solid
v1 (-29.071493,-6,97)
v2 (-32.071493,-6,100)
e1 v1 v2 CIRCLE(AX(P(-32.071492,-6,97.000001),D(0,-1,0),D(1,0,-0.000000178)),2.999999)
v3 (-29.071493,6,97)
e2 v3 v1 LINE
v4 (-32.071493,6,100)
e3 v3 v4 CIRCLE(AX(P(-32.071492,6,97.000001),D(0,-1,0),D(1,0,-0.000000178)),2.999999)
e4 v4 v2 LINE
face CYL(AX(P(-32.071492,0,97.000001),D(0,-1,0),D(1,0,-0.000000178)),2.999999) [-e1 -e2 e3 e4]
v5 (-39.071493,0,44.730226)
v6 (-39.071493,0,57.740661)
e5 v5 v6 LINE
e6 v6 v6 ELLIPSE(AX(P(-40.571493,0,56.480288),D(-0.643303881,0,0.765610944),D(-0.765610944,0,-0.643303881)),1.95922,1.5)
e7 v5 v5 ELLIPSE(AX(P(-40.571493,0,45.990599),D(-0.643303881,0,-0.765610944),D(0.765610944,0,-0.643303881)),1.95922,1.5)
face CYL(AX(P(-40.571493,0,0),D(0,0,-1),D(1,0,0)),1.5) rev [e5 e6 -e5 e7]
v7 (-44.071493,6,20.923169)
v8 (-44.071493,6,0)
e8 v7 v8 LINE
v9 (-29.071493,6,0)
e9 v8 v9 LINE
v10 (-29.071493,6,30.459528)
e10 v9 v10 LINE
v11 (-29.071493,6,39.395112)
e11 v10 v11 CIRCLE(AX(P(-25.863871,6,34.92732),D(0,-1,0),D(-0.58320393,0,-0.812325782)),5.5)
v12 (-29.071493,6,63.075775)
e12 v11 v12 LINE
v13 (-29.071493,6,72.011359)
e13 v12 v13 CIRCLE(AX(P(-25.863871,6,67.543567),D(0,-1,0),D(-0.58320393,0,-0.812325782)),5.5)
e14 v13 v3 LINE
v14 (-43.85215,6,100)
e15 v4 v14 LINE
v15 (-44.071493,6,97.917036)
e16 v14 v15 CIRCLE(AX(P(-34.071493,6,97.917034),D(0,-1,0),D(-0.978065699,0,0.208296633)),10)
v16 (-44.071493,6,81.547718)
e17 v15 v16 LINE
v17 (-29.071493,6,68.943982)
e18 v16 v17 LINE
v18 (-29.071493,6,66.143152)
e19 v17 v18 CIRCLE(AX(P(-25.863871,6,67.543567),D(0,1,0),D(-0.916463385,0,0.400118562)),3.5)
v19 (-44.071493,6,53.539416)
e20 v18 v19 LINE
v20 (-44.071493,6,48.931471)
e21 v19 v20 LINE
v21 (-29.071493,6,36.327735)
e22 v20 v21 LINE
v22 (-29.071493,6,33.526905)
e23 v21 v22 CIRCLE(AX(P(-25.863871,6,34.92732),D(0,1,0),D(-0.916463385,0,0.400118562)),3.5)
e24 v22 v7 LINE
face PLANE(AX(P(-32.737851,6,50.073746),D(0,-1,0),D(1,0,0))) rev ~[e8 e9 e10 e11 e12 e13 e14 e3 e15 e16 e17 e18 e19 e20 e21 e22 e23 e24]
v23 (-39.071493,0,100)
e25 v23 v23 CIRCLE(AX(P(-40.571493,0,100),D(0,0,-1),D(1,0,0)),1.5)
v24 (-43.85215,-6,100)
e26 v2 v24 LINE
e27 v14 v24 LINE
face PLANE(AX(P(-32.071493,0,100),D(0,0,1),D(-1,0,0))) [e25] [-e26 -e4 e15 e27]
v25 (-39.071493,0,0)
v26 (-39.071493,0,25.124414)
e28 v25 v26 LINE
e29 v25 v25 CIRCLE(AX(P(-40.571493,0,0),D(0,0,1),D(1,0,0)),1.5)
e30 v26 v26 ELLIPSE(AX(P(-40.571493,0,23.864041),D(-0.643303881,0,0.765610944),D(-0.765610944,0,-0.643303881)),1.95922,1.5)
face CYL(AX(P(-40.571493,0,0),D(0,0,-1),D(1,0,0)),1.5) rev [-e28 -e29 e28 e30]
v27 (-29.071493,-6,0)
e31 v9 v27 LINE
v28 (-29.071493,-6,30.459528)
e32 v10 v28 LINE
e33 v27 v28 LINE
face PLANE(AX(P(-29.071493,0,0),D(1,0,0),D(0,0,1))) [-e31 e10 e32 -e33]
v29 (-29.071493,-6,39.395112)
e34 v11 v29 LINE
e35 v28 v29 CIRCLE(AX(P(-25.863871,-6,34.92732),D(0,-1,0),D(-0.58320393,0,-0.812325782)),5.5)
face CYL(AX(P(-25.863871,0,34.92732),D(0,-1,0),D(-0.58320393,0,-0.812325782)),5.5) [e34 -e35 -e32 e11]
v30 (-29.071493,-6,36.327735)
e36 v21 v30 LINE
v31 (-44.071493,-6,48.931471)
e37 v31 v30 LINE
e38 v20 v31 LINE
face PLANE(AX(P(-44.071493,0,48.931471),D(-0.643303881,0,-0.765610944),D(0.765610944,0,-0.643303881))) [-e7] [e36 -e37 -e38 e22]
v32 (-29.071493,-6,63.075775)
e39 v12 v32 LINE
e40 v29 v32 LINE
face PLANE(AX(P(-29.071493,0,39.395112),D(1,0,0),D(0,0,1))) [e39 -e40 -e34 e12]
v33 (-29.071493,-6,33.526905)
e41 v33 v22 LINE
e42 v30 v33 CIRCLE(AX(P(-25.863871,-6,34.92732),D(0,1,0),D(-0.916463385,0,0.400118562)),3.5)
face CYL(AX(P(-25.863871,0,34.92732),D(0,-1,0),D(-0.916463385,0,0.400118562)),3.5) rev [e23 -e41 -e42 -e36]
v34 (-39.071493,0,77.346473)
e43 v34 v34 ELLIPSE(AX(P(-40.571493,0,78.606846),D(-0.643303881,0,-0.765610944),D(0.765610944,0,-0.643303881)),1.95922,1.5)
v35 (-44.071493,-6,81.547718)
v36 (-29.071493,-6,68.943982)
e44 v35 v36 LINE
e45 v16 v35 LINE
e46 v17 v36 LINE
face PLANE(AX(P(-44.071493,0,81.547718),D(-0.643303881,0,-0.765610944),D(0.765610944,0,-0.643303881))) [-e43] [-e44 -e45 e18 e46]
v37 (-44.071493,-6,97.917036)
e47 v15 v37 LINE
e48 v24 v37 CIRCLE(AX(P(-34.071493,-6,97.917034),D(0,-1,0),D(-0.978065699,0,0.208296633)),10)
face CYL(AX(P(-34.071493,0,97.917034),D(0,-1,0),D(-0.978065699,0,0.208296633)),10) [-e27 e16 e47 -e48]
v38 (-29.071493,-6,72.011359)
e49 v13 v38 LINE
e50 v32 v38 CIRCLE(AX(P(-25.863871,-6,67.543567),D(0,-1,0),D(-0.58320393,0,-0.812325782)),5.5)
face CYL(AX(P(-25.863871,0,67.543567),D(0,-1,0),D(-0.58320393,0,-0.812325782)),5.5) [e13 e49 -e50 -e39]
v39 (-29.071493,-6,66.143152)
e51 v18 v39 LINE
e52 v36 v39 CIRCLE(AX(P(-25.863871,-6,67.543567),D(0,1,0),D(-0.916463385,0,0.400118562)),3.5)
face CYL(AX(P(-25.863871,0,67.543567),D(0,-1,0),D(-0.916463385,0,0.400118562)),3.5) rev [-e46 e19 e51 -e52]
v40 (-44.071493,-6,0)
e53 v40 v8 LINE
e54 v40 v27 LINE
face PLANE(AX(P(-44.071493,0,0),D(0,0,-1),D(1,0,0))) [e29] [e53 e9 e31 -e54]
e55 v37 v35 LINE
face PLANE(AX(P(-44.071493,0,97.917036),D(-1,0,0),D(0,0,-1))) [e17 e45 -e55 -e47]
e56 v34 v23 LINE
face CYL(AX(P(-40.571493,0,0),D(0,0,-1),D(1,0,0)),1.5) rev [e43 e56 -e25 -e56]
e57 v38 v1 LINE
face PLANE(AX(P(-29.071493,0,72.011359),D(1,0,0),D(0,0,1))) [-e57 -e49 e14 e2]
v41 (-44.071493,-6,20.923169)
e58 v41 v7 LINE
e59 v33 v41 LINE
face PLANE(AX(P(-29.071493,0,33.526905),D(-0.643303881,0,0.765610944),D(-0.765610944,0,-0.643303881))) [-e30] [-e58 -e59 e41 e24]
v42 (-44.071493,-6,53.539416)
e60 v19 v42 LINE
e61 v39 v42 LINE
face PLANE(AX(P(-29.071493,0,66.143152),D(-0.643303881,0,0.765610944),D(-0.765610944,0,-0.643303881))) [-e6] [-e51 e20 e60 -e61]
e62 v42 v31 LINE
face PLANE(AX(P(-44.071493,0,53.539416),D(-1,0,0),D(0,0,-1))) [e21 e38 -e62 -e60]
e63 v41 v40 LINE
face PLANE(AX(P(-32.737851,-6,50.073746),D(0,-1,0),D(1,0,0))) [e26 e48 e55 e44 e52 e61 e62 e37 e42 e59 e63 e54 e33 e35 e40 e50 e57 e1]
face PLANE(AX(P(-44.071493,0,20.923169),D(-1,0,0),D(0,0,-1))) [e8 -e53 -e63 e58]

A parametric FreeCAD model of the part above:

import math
import FreeCAD as App
import Part
import Sketcher

doc = App.newDocument("Part")
body = doc.addObject("PartDesign::Body", "Body")

sketch1 = body.newObject("Sketcher::SketchObject", "Sketch")
sketch1.AttachmentSupport = (doc.getObject("XZ_Plane"), [""])
sketch1.MapMode = "FlatFace"
sketch1.addGeometry(Part.LineSegment(App.Vector(-44.1, 0, 0), App.Vector(-29.1, 0, 0)), False)
sketch1.addGeometry(Part.LineSegment(App.Vector(-29.1, 0, 0), App.Vector(-29.1, 30.5, 0)), False)
sketch1.addGeometry(Part.ArcOfCircle(Part.Circle(App.Vector(-25.9, 34.9, 0), App.Vector(0, 0, 1), 5.5), math.radians(-126), math.radians(126)), False)
sketch1.addGeometry(Part.LineSegment(App.Vector(-29.1, 39.4, 0), App.Vector(-29.1, 63.1, 0)), False)
sketch1.addGeometry(Part.ArcOfCircle(Part.Circle(App.Vector(-25.9, 67.5, 0), App.Vector(0, 0, 1), 5.5), math.radians(-126), math.radians(126)), False)
sketch1.addGeometry(Part.LineSegment(App.Vector(-29.1, 72, 0), App.Vector(-29.1, 97, 0)), False)
sketch1.addGeometry(Part.ArcOfCircle(Part.Circle(App.Vector(-32.1, 97, 0), App.Vector(0, 0, 1), 3), math.radians(0), math.radians(90)), False)
sketch1.addGeometry(Part.LineSegment(App.Vector(-32.1, 100, 0), App.Vector(-43.9, 100, 0)), False)
sketch1.addGeometry(Part.ArcOfCircle(Part.Circle(App.Vector(-34.1, 97.9, 0), App.Vector(0, 0, 1), 10), math.radians(167.98), math.radians(180)), False)
sketch1.addGeometry(Part.LineSegment(App.Vector(-44.1, 97.9, 0), App.Vector(-44.1, 81.5, 0)), False)
sketch1.addGeometry(Part.LineSegment(App.Vector(-44.1, 81.5, 0), App.Vector(-29.1, 68.9, 0)), False)
sketch1.addGeometry(Part.ArcOfCircle(Part.Circle(App.Vector(-25.9, 67.5, 0), App.Vector(0, 0, 1), 3.5), math.radians(-156), math.radians(156)), False)
sketch1.addGeometry(Part.LineSegment(App.Vector(-29.1, 66.1, 0), App.Vector(-44.1, 53.5, 0)), False)
sketch1.addGeometry(Part.LineSegment(App.Vector(-44.1, 53.5, 0), App.Vector(-44.1, 48.9, 0)), False)
sketch1.addGeometry(Part.LineSegment(App.Vector(-44.1, 48.9, 0), App.Vector(-29.1, 36.3, 0)), False)
sketch1.addGeometry(Part.ArcOfCircle(Part.Circle(App.Vector(-25.9, 34.9, 0), App.Vector(0, 0, 1), 3.5), math.radians(-156), math.radians(156)), False)
sketch1.addGeometry(Part.LineSegment(App.Vector(-29.1, 33.5, 0), App.Vector(-44.1, 20.9, 0)), False)
sketch1.addGeometry(Part.LineSegment(App.Vector(-44.1, 20.9, 0), App.Vector(-44.1, 0, 0)), False)
sketch1.addConstraint(Sketcher.Constraint("Coincident", 0, 2, 1, 1))
sketch1.addConstraint(Sketcher.Constraint("Coincident", 1, 2, 2, 1))
sketch1.addConstraint(Sketcher.Constraint("Coincident", 2, 2, 3, 1))
sketch1.addConstraint(Sketcher.Constraint("Coincident", 3, 2, 4, 1))
sketch1.addConstraint(Sketcher.Constraint("Coincident", 4, 2, 5, 1))
sketch1.addConstraint(Sketcher.Constraint("Tangent", 5, 2, 6, 1))
sketch1.addConstraint(Sketcher.Constraint("Tangent", 6, 2, 7, 1))
sketch1.addConstraint(Sketcher.Constraint("Coincident", 7, 2, 8, 1))
sketch1.addConstraint(Sketcher.Constraint("Tangent", 8, 2, 9, 1))
sketch1.addConstraint(Sketcher.Constraint("Coincident", 9, 2, 10, 1))
sketch1.addConstraint(Sketcher.Constraint("Coincident", 10, 2, 11, 2))
sketch1.addConstraint(Sketcher.Constraint("Coincident", 11, 1, 12, 1))
sketch1.addConstraint(Sketcher.Constraint("Coincident", 12, 2, 13, 1))
sketch1.addConstraint(Sketcher.Constraint("Coincident", 13, 2, 14, 1))
sketch1.addConstraint(Sketcher.Constraint("Coincident", 14, 2, 15, 2))
sketch1.addConstraint(Sketcher.Constraint("Coincident", 15, 1, 16, 1))
sketch1.addConstraint(Sketcher.Constraint("Coincident", 16, 2, 17, 1))
sketch1.addConstraint(Sketcher.Constraint("Coincident", 17, 2, 0, 1))
sketch1.addConstraint(Sketcher.Constraint("Horizontal", 0))
sketch1.addConstraint(Sketcher.Constraint("Vertical", 1))
sketch1.addConstraint(Sketcher.Constraint("Vertical", 3))
sketch1.addConstraint(Sketcher.Constraint("Vertical", 5))
sketch1.addConstraint(Sketcher.Constraint("Horizontal", 7))
sketch1.addConstraint(Sketcher.Constraint("Vertical", 9))
sketch1.addConstraint(Sketcher.Constraint("Vertical", 13))
sketch1.addConstraint(Sketcher.Constraint("Vertical", 17))
sketch1.addConstraint(Sketcher.Constraint("Coincident", 11, 3, 4, 3))
sketch1.addConstraint(Sketcher.Constraint("Coincident", 15, 3, 2, 3))
sketch1.addConstraint(Sketcher.Constraint("Equal", 2, 4))
sketch1.addConstraint(Sketcher.Constraint("Equal", 11, 15))
sketch1.addConstraint(Sketcher.Constraint("PointOnObject", 0, 2, -1))
sketch1.addConstraint(Sketcher.Constraint("Parallel", 10, 14))
sketch1.addConstraint(Sketcher.Constraint("Parallel", 12, 16))
sketch1.addConstraint(Sketcher.Constraint("Vertical", 2, 3, 4, 3))
sketch1.addConstraint(Sketcher.Constraint("Vertical", 1, 2, 2, 2))
sketch1.addConstraint(Sketcher.Constraint("Vertical", 3, 2, 4, 2))
sketch1.addConstraint(Sketcher.Constraint("Vertical", 5, 2, 10, 2))
sketch1.addConstraint(Sketcher.Constraint("Vertical", 10, 2, 11, 1))
sketch1.addConstraint(Sketcher.Constraint("Vertical", 9, 2, 12, 2))
sketch1.addConstraint(Sketcher.Constraint("Vertical", 11, 1, 14, 2))
sketch1.addConstraint(Sketcher.Constraint("Vertical", 14, 2, 15, 1))
sketch1.addConstraint(Sketcher.Constraint("Vertical", 13, 2, 16, 2))
sketch1.addConstraint(Sketcher.Constraint("Equal", 10, 12))
sketch1.addConstraint(Sketcher.Constraint("Radius", 6, 2.999999))
sketch1.addConstraint(Sketcher.Constraint("Radius", 8, 10.0))
sketch1.addConstraint(Sketcher.Constraint("Radius", 2, 5.5))
sketch1.addConstraint(Sketcher.Constraint("Radius", 11, 3.5))
sketch1.addConstraint(Sketcher.Constraint("DistanceX", 0, 1, 0, 2, 15.0))
sketch1.addConstraint(Sketcher.Constraint("DistanceY", -1, 1, 6, 3, 97.000001))
sketch1.addConstraint(Sketcher.Constraint("DistanceY", 5, 1, 5, 2, 24.988641))
sketch1.addConstraint(Sketcher.Constraint("DistanceY", 17, 2, 17, 1, 20.923169))
sketch1.addConstraint(Sketcher.Constraint("DistanceX", 7, 2, 7, 1, 11.780657))
sketch1.addConstraint(Sketcher.Constraint("DistanceY", 1, 1, 1, 2, 30.459528))
sketch1.addConstraint(Sketcher.Constraint("DistanceY", 3, 1, 3, 2, 23.680663))
sketch1.addConstraint(Sketcher.Constraint("DistanceX", 2, 3, -1, 1, 25.863871))
pad1 = body.newObject("PartDesign::Pad", "Pad")
pad1.Profile = sketch1
pad1.Length = 12
pad1.Midplane = True

sketch2 = body.newObject("Sketcher::SketchObject", "Sketch001")
sketch2.AttachmentSupport = (doc.getObject("XY_Plane"), [""])
sketch2.MapMode = "FlatFace"
sketch2.addGeometry(Part.Circle(App.Vector(-40.6, 0, 0), App.Vector(0, 0, 1), 1.5), False)
sketch2.addConstraint(Sketcher.Constraint("PointOnObject", 0, 3, -1))
sketch2.addConstraint(Sketcher.Constraint("Diameter", 0, 3.0))
sketch2.addConstraint(Sketcher.Constraint("DistanceX", 0, 3, -1, 1, 40.571493))
pocket1 = body.newObject("PartDesign::Pocket", "Pocket")
pocket1.Profile = sketch2
pocket1.Type = "ThroughAll"
pocket1.Reversed = True

doc.recompute()
